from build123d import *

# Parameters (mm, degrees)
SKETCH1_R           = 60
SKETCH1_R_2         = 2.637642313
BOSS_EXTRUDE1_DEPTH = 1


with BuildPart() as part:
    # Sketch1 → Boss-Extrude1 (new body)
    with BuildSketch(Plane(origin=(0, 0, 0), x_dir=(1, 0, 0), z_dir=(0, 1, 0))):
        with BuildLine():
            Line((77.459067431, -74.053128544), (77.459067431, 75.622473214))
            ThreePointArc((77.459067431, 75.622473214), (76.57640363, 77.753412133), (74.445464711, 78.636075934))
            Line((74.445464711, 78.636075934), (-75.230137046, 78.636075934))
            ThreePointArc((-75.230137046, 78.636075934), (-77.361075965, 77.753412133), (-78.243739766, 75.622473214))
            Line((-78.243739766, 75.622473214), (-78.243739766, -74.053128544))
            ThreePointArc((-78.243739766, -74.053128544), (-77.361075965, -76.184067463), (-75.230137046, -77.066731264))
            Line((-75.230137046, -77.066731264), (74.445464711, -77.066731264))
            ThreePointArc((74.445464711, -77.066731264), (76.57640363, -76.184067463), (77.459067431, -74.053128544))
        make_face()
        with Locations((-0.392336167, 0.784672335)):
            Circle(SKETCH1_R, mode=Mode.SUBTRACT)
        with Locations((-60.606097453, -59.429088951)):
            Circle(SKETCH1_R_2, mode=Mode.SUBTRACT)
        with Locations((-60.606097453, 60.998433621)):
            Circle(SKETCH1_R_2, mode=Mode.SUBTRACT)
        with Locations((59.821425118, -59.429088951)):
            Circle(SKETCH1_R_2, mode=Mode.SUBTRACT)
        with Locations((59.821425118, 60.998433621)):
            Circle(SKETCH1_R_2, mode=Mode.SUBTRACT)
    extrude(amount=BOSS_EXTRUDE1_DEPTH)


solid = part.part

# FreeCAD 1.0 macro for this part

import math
import FreeCAD as App
import Part
import Sketcher
from FreeCAD import Vector

doc = App.newDocument("Part")
body = doc.addObject("PartDesign::Body", "Body")

sketch1 = body.newObject("Sketcher::SketchObject", "Sketch")
sketch1.AttachmentSupport = (doc.getObject("XZ_Plane"), [""])
sketch1.MapMode = "FlatFace"
sketch1.addGeometry(Part.LineSegment(Vector(77.459067, 74.053129, 0), Vector(77.459067, -75.622473, 0)), False)
sketch1.addGeometry(Part.ArcOfCircle(Part.Circle(Vector(74.445465, -75.622473, 0), Vector(0, 0, 1), 3.013603), math.radians(-90), math.radians(0)), False)
sketch1.addGeometry(Part.LineSegment(Vector(74.445465, -78.636076, 0), Vector(-75.230137, -78.636076, 0)), False)
sketch1.addGeometry(Part.ArcOfCircle(Part.Circle(Vector(-75.230137, -75.622473, 0), Vector(0, 0, 1), 3.013603), math.radians(180), math.radians(270)), False)
sketch1.addGeometry(Part.LineSegment(Vector(-78.24374, -75.622473, 0), Vector(-78.24374, 74.053129, 0)), False)
sketch1.addGeometry(Part.ArcOfCircle(Part.Circle(Vector(-75.230137, 74.053129, 0), Vector(0, 0, 1), 3.013603), math.radians(90), math.radians(180)), False)
sketch1.addGeometry(Part.LineSegment(Vector(-75.230137, 77.066731, 0), Vector(74.445465, 77.066731, 0)), False)
sketch1.addGeometry(Part.ArcOfCircle(Part.Circle(Vector(74.445465, 74.053129, 0), Vector(0, 0, 1), 3.013603), math.radians(0), math.radians(90)), False)
sketch1.addGeometry(Part.Circle(Vector(-60.606097, 59.429089, 0), Vector(0, 0, 1), 2.637642), False)
sketch1.addGeometry(Part.Circle(Vector(59.821425, 59.429089, 0), Vector(0, 0, 1), 2.637642), False)
sketch1.addGeometry(Part.Circle(Vector(-60.606097, -60.998434, 0), Vector(0, 0, 1), 2.637642), False)
sketch1.addGeometry(Part.Circle(Vector(-0.392336, -0.784672, 0), Vector(0, 0, 1), 60), False)
sketch1.addGeometry(Part.Circle(Vector(59.821425, -60.998434, 0), Vector(0, 0, 1), 2.637642), False)
sketch1.addConstraint(Sketcher.Constraint("Tangent", 0, 2, 1, 2))
sketch1.addConstraint(Sketcher.Constraint("Tangent", 1, 1, 2, 1))
sketch1.addConstraint(Sketcher.Constraint("Tangent", 2, 2, 3, 2))
sketch1.addConstraint(Sketcher.Constraint("Tangent", 3, 1, 4, 1))
sketch1.addConstraint(Sketcher.Constraint("Tangent", 4, 2, 5, 2))
sketch1.addConstraint(Sketcher.Constraint("Tangent", 5, 1, 6, 1))
sketch1.addConstraint(Sketcher.Constraint("Tangent", 6, 2, 7, 2))
sketch1.addConstraint(Sketcher.Constraint("Tangent", 7, 1, 0, 1))
sketch1.addConstraint(Sketcher.Constraint("Vertical", 0))
sketch1.addConstraint(Sketcher.Constraint("Horizontal", 2))
sketch1.addConstraint(Sketcher.Constraint("Vertical", 4))
sketch1.addConstraint(Sketcher.Constraint("Horizontal", 6))
sketch1.addConstraint(Sketcher.Constraint("Equal", 1, 3))
sketch1.addConstraint(Sketcher.Constraint("Equal", 3, 5))
sketch1.addConstraint(Sketcher.Constraint("Equal", 5, 7))
sketch1.addConstraint(Sketcher.Constraint("Equal", 8, 9))
sketch1.addConstraint(Sketcher.Constraint("Equal", 9, 10))
sketch1.addConstraint(Sketcher.Constraint("Equal", 10, 12))
sketch1.addConstraint(Sketcher.Constraint("Horizontal", 8, 3, 9, 3))
sketch1.addConstraint(Sketcher.Constraint("Horizontal", 10, 3, 12, 3))
sketch1.addConstraint(Sketcher.Constraint("Vertical", 8, 3, 10, 3))
sketch1.addConstraint(Sketcher.Constraint("Vertical", 9, 3, 12, 3))
sketch1.addConstraint(Sketcher.Constraint("Equal", 6, 0))
sketch1.addConstraint(Sketcher.Constraint("Diameter", 11, 120.0))
sketch1.addConstraint(Sketcher.Constraint("Diameter", 8, 5.275285))
sketch1.addConstraint(Sketcher.Constraint("DistanceX", 2, 2, 2, 1, 149.675602))
sketch1.addConstraint(Sketcher.Constraint("Radius", 1, 3.013603))
sketch1.addConstraint(Sketcher.Constraint("DistanceX", 11, 3, 1, 3, 74.837801))
sketch1.addConstraint(Sketcher.Constraint("DistanceY", 1, 3, 11, 3, 74.837801))
sketch1.addConstraint(Sketcher.Constraint("DistanceY", -1, 1, 5, 3, 74.053129))
sketch1.addConstraint(Sketcher.Constraint("DistanceY", -1, 1, 8, 3, 59.429089))
sketch1.addConstraint(Sketcher.Constraint("DistanceX", 3, 1, -1, 1, 78.24374))
sketch1.addConstraint(Sketcher.Constraint("DistanceX", 5, 3, 8, 3, 14.62404))
sketch1.addConstraint(Sketcher.Constraint("DistanceX", 9, 3, 7, 3, 14.62404))
sketch1.addConstraint(Sketcher.Constraint("DistanceY", 3, 3, 10, 3, 14.62404))
pad1 = body.newObject("PartDesign::Pad", "Pad")
pad1.Profile = sketch1
pad1.Length = 1
pad1.Reversed = True

doc.recompute()
